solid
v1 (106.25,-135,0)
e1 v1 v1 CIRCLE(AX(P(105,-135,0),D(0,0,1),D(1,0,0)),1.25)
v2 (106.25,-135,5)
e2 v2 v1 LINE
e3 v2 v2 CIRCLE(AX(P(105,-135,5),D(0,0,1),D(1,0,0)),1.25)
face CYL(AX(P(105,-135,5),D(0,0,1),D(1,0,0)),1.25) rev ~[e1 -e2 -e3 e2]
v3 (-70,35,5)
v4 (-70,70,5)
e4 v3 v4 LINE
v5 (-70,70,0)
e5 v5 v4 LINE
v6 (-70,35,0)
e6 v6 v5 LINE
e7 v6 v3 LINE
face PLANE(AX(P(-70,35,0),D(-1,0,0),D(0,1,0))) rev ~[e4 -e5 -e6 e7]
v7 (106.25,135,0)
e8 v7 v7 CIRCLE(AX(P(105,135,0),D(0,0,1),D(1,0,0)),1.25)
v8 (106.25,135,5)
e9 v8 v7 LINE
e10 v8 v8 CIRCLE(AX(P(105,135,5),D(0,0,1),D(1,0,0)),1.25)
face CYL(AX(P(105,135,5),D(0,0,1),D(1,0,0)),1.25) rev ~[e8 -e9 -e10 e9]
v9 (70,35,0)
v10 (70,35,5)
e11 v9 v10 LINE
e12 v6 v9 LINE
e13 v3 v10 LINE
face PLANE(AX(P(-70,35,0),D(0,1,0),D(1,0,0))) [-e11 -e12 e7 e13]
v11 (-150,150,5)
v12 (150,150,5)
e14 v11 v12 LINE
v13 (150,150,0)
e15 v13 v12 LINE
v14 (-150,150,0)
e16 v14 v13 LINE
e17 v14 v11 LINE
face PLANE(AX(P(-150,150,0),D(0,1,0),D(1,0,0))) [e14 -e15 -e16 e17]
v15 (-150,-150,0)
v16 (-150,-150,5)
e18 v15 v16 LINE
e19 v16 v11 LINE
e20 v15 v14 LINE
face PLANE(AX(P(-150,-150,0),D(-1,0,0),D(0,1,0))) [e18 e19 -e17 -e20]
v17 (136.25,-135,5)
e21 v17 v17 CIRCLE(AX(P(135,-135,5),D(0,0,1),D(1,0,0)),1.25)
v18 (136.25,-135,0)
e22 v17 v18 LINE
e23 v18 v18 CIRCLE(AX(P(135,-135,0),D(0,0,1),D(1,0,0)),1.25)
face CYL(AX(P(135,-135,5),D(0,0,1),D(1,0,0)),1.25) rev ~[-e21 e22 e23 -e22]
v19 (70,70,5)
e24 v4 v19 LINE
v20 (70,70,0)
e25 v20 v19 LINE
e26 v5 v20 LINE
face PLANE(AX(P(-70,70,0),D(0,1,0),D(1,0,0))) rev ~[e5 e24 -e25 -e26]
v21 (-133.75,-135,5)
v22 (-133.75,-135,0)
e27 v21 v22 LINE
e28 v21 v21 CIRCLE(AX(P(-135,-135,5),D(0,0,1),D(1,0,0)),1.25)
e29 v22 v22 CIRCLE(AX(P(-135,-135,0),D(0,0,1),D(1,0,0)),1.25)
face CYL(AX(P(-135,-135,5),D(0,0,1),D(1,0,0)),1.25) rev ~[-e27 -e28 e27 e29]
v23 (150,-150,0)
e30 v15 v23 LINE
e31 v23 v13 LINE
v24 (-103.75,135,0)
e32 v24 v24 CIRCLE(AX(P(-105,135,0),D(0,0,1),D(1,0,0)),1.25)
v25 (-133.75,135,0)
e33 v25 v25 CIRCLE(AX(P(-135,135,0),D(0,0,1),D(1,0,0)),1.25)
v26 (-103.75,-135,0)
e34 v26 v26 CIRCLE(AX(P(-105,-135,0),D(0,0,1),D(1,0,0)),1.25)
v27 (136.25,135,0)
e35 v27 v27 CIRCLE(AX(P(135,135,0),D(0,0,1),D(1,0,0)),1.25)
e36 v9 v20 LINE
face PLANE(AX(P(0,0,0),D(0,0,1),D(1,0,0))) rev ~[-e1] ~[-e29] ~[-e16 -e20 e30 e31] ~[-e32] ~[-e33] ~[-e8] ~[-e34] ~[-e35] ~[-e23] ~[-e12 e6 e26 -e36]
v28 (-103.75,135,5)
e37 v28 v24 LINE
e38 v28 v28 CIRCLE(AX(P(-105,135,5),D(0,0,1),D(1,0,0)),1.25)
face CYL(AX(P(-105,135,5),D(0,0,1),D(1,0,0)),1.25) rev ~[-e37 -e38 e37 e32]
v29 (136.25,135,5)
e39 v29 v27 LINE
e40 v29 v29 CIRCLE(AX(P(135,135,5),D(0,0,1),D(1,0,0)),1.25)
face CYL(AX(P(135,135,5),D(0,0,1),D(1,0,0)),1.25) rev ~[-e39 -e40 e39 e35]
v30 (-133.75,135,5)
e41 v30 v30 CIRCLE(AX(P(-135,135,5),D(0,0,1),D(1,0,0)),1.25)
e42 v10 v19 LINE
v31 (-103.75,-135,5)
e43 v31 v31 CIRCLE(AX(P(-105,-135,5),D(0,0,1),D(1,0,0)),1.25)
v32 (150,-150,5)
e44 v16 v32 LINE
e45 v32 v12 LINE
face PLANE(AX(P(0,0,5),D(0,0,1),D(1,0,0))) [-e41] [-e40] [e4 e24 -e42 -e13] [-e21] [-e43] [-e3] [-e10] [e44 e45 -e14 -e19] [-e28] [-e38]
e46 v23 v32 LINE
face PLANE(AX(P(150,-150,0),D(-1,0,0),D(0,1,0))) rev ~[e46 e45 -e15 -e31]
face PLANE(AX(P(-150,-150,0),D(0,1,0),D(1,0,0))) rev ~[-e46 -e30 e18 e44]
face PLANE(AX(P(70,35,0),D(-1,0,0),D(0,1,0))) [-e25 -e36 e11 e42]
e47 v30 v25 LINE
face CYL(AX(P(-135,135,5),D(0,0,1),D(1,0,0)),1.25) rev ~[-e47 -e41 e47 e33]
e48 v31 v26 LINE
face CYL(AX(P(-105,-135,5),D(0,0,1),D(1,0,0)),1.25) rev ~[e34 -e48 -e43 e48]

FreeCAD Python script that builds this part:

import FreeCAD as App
import Part
import Sketcher

V = App.Vector
Q = App.Units.Quantity


def add_polygon(sketch, points):
    """Adds a closed chain of lines whose ends are joined by coincident constraints."""
    first, n = sketch.GeometryCount, len(points)
    for a, b in zip(points, points[1:] + points[:1]):
        sketch.addGeometry(Part.LineSegment(App.Vector(*a, 0), App.Vector(*b, 0)), False)
    for i in range(n):
        sketch.addConstraint(Sketcher.Constraint("Coincident", first + i, 2, first + (i + 1) % n, 1))

doc = App.newDocument("Part")
body = doc.addObject("PartDesign::Body", "Body")

# Sketch on XY plane
sketch1 = doc.addObject("Sketcher::SketchObject", "Sketch")
body.addObject(sketch1)
sketch1.AttachmentSupport = (doc.XY_Plane, [""])
sketch1.MapMode = "FlatFace"
add_polygon(sketch1, [(-150, 150), (-150, -150), (150, -150), (150, 150)])  # lines 0-3
add_polygon(sketch1, [(70, 35), (-70, 35), (-70, 70), (70, 70)])  # lines 4-7
sketch1.addConstraint([
    Sketcher.Constraint("Vertical", 0),
    Sketcher.Constraint("Horizontal", 1),
    Sketcher.Constraint("Vertical", 2),
    Sketcher.Constraint("Horizontal", 3),
    Sketcher.Constraint("Horizontal", 4),
    Sketcher.Constraint("Vertical", 5),
    Sketcher.Constraint("Horizontal", 6),
    Sketcher.Constraint("Vertical", 7),
    Sketcher.Constraint("Symmetric", 0, 2, 2, 2, -1, 1),
    Sketcher.Constraint("Equal", 3, 0),
    Sketcher.Constraint("DistanceX", 1, 1, 1, 2, Q("300 mm")),
    Sketcher.Constraint("DistanceX", 4, 2, 4, 1, Q("140 mm")),
    Sketcher.Constraint("DistanceY", 5, 1, 5, 2, Q("35 mm")),
    Sketcher.Constraint("DistanceX", 4, 2, -1, 1, Q("70 mm")),
    Sketcher.Constraint("DistanceY", -1, 1, 4, 2, Q("35 mm")),
])
pad1 = doc.addObject("PartDesign::Pad", "Pad")
body.addObject(pad1)
pad1.Profile = sketch1
pad1.Length = 5

# Sketch on XY plane
sketch2 = doc.addObject("Sketcher::SketchObject", "Sketch001")
body.addObject(sketch2)
sketch2.AttachmentSupport = (doc.XY_Plane, [""])
sketch2.MapMode = "FlatFace"
sketch2.AttachmentOffset = App.Placement(V(0, 0, 5), App.Rotation())
sketch2.addGeometry([
    Part.Circle(V(-135, 135, 0), V(0, 0, 1), 1.2),  # 0
    Part.Circle(V(135, 135, 0), V(0, 0, 1), 1.2),  # 1
    Part.Circle(V(-135, -135, 0), V(0, 0, 1), 1.2),  # 2
    Part.Circle(V(135, -135, 0), V(0, 0, 1), 1.2),  # 3
    Part.Circle(V(-105, -135, 0), V(0, 0, 1), 1.2),  # 4
    Part.Circle(V(105, -135, 0), V(0, 0, 1), 1.2),  # 5
    Part.Circle(V(105, 135, 0), V(0, 0, 1), 1.2),  # 6
    Part.Circle(V(-105, 135, 0), V(0, 0, 1), 1.2),  # 7
], False)
sketch2.addConstraint([
    Sketcher.Constraint("Equal", 0, 1),
    Sketcher.Constraint("Equal", 1, 2),
    Sketcher.Constraint("Equal", 2, 3),
    Sketcher.Constraint("Equal", 3, 4),
    Sketcher.Constraint("Equal", 4, 5),
    Sketcher.Constraint("Equal", 5, 6),
    Sketcher.Constraint("Equal", 6, 7),
    Sketcher.Constraint("Symmetric", 1, 3, 2, 3, -1, 1),
    Sketcher.Constraint("Symmetric", 0, 3, 3, 3, -1, 1),
    Sketcher.Constraint("Symmetric", 4, 3, 6, 3, -1, 1),
    Sketcher.Constraint("Symmetric", 5, 3, 7, 3, -1, 1),
    Sketcher.Constraint("Symmetric", 0, 3, 1, 3, -2),
    Sketcher.Constraint("Symmetric", 4, 3, 5, 3, -2),
    Sketcher.Constraint("Horizontal", 3, 3, 4, 3),
    Sketcher.Constraint("Diameter", 0, Q("2.5 mm")),
    Sketcher.Constraint("DistanceX", 0, 3, -1, 1, Q("135 mm")),
    Sketcher.Constraint("DistanceY", -1, 1, 0, 3, Q("135 mm")),
    Sketcher.Constraint("DistanceX", 4, 3, -1, 1, Q("105 mm")),
])
pocket1 = doc.addObject("PartDesign::Pocket", "Pocket")
body.addObject(pocket1)
pocket1.Profile = sketch2
pocket1.Type = "ThroughAll"

doc.recompute()
